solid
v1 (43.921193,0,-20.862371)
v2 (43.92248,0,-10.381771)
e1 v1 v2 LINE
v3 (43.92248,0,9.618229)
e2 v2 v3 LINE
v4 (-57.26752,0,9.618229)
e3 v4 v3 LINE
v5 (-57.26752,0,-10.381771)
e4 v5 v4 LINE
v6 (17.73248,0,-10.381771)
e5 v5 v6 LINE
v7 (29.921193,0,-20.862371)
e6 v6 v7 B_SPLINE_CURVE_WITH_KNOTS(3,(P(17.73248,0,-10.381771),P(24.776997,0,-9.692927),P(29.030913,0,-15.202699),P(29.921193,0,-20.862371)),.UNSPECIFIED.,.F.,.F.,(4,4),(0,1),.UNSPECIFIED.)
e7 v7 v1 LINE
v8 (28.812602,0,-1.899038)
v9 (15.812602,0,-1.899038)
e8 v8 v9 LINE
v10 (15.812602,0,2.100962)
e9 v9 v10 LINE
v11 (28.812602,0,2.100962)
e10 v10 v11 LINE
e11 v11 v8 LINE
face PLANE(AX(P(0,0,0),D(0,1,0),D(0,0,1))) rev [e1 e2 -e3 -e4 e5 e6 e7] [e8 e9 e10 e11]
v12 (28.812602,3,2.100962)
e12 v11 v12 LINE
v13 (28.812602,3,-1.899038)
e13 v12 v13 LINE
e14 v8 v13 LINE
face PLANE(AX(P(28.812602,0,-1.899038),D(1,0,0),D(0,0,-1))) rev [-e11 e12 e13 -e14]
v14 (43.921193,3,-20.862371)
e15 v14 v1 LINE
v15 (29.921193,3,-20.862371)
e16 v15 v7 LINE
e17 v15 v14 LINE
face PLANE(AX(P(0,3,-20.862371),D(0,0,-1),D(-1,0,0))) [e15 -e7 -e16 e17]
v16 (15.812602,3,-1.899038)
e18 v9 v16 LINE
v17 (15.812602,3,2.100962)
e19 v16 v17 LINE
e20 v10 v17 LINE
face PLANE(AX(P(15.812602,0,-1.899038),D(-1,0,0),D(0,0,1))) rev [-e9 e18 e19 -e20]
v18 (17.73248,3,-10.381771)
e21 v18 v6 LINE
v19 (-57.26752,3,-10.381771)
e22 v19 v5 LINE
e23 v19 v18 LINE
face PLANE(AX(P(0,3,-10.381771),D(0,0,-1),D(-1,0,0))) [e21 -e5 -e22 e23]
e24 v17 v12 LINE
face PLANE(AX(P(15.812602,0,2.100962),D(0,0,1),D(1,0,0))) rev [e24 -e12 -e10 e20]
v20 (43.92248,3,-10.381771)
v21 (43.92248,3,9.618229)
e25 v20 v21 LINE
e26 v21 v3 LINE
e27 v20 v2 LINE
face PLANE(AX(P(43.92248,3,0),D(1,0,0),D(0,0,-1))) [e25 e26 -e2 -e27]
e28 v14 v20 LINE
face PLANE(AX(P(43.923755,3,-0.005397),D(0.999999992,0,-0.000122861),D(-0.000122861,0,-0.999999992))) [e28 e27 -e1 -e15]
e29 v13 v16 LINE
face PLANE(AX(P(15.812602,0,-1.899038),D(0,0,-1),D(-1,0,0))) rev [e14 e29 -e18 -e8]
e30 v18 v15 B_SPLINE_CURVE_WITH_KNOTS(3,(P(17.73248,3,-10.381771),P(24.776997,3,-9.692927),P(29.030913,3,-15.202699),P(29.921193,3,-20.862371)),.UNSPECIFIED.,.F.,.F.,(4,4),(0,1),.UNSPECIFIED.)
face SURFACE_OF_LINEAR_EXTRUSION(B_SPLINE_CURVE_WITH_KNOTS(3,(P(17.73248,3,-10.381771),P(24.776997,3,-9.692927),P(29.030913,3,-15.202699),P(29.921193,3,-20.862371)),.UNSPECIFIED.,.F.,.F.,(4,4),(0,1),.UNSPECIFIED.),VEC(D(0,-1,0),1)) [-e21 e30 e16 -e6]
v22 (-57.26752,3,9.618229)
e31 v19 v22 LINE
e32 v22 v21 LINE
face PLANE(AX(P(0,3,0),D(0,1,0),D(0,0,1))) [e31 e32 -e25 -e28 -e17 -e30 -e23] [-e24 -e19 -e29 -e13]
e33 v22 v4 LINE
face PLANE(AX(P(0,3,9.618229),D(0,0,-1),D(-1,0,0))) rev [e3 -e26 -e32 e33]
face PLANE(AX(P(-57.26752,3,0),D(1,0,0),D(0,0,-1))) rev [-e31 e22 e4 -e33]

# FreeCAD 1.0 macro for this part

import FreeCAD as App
import Part
import Sketcher

doc = App.newDocument("Part")
body = doc.addObject("PartDesign::Body", "Body")

# Sketch on XZ plane
sketch1 = doc.addObject("Sketcher::SketchObject", "Sketch")
body.addObject(sketch1)
sketch1.AttachmentSupport = (doc.XZ_Plane, [""])
sketch1.MapMode = "FlatFace"
sketch1.addGeometry([
    Part.LineSegment(App.Vector(17.73248, -10.381771, 0), App.Vector(-57.26752, -10.381771, 0)),  # 0
    Part.LineSegment(App.Vector(-57.26752, -10.381771, 0), App.Vector(-57.26752, 9.618229, 0)),  # 1
    Part.LineSegment(App.Vector(-57.26752, 9.618229, 0), App.Vector(43.92248, 9.618229, 0)),  # 2
    Part.LineSegment(App.Vector(43.92248, 9.618229, 0), App.Vector(43.92248, -10.381771, 0)),  # 3
    Part.LineSegment(App.Vector(43.92248, -10.381771, 0), App.Vector(43.921193, -20.862371, 0)),  # 4
    Part.LineSegment(App.Vector(43.921193, -20.862371, 0), App.Vector(29.921193, -20.862371, 0)),  # 5
    Part.BSplineCurve([App.Vector(20.060176, -10.381771, 0), App.Vector(25.714512, -10.967301, 0), App.Vector(29.13371, -15.856194, 0), App.Vector(29.921193, -20.862371, 0)], [4, 4], [0.115465336, 1], False, 3, [1, 1, 1, 1], False),  # 6
    Part.BSplineCurve([App.Vector(17.73248, -10.381771, 0), App.Vector(18.545878, -10.302233, 0), App.Vector(19.32207, -10.305337, 0), App.Vector(20.060176, -10.381771, 0)], [4, 4], [0, 0.115465336], False, 3, [1, 1, 1, 1], False),  # 7
], False)
sketch1.addConstraint([
    Sketcher.Constraint("Block", 6),
    Sketcher.Constraint("Block", 7),
    Sketcher.Constraint("Coincident", 0, 2, 1, 1),
    Sketcher.Constraint("Coincident", 1, 2, 2, 1),
    Sketcher.Constraint("Coincident", 2, 2, 3, 1),
    Sketcher.Constraint("Coincident", 3, 2, 4, 1),
    Sketcher.Constraint("Coincident", 4, 2, 5, 1),
    Sketcher.Constraint("Coincident", 5, 2, 6, 2),
    Sketcher.Constraint("Coincident", 7, 1, 0, 1),
    Sketcher.Constraint("Horizontal", 0),
    Sketcher.Constraint("Vertical", 1),
    Sketcher.Constraint("Horizontal", 2),
    Sketcher.Constraint("Vertical", 3),
    Sketcher.Constraint("Horizontal", 5),
    Sketcher.Constraint("Horizontal", 0, 2, 3, 2),
    Sketcher.Constraint("DistanceX", 0, 2, 0, 1, 75.0),
    Sketcher.Constraint("DistanceX", 5, 2, 5, 1, 14.0),
    Sketcher.Constraint("DistanceY", 1, 1, 1, 2, 20.0),
    Sketcher.Constraint("DistanceX", 2, 1, 2, 2, 101.19),
])
pad1 = doc.addObject("PartDesign::Pad", "Pad")
body.addObject(pad1)
pad1.Profile = sketch1
pad1.Length = 3
pad1.Reversed = True

# Sketch on XZ plane
sketch2 = doc.addObject("Sketcher::SketchObject", "Sketch001")
body.addObject(sketch2)
sketch2.AttachmentSupport = (doc.XZ_Plane, [""])
sketch2.MapMode = "FlatFace"
sketch2.AttachmentOffset = App.Placement(App.Vector(0, 0, -3), App.Rotation())
sketch2.addGeometry([
    Part.LineSegment(App.Vector(15.8, -1.9, 0), App.Vector(15.8, 2.1, 0)),
    Part.LineSegment(App.Vector(15.8, 2.1, 0), App.Vector(28.8, 2.1, 0)),
    Part.LineSegment(App.Vector(28.8, 2.1, 0), App.Vector(28.8, -1.9, 0)),
    Part.LineSegment(App.Vector(28.8, -1.9, 0), App.Vector(15.8, -1.9, 0)),
], False)
sketch2.addConstraint([
    Sketcher.Constraint("Coincident", 0, 2, 1, 1),
    Sketcher.Constraint("Coincident", 1, 2, 2, 1),
    Sketcher.Constraint("Coincident", 2, 2, 3, 1),
    Sketcher.Constraint("Coincident", 3, 2, 0, 1),
    Sketcher.Constraint("Vertical", 0),
    Sketcher.Constraint("Horizontal", 1),
    Sketcher.Constraint("Vertical", 2),
    Sketcher.Constraint("Horizontal", 3),
    Sketcher.Constraint("DistanceX", 1, 1, 1, 2, 13.0),
    Sketcher.Constraint("DistanceY", 0, 1, 0, 2, 4.0),
    Sketcher.Constraint("DistanceX", -1, 1, 0, 2, 15.812602),
    Sketcher.Constraint("DistanceY", -1, 1, 0, 2, 2.100962),
])
pocket1 = doc.addObject("PartDesign::Pocket", "Pocket")
body.addObject(pocket1)
pocket1.Profile = sketch2
pocket1.Type = "ThroughAll"
pocket1.Reversed = True

doc.recompute()
